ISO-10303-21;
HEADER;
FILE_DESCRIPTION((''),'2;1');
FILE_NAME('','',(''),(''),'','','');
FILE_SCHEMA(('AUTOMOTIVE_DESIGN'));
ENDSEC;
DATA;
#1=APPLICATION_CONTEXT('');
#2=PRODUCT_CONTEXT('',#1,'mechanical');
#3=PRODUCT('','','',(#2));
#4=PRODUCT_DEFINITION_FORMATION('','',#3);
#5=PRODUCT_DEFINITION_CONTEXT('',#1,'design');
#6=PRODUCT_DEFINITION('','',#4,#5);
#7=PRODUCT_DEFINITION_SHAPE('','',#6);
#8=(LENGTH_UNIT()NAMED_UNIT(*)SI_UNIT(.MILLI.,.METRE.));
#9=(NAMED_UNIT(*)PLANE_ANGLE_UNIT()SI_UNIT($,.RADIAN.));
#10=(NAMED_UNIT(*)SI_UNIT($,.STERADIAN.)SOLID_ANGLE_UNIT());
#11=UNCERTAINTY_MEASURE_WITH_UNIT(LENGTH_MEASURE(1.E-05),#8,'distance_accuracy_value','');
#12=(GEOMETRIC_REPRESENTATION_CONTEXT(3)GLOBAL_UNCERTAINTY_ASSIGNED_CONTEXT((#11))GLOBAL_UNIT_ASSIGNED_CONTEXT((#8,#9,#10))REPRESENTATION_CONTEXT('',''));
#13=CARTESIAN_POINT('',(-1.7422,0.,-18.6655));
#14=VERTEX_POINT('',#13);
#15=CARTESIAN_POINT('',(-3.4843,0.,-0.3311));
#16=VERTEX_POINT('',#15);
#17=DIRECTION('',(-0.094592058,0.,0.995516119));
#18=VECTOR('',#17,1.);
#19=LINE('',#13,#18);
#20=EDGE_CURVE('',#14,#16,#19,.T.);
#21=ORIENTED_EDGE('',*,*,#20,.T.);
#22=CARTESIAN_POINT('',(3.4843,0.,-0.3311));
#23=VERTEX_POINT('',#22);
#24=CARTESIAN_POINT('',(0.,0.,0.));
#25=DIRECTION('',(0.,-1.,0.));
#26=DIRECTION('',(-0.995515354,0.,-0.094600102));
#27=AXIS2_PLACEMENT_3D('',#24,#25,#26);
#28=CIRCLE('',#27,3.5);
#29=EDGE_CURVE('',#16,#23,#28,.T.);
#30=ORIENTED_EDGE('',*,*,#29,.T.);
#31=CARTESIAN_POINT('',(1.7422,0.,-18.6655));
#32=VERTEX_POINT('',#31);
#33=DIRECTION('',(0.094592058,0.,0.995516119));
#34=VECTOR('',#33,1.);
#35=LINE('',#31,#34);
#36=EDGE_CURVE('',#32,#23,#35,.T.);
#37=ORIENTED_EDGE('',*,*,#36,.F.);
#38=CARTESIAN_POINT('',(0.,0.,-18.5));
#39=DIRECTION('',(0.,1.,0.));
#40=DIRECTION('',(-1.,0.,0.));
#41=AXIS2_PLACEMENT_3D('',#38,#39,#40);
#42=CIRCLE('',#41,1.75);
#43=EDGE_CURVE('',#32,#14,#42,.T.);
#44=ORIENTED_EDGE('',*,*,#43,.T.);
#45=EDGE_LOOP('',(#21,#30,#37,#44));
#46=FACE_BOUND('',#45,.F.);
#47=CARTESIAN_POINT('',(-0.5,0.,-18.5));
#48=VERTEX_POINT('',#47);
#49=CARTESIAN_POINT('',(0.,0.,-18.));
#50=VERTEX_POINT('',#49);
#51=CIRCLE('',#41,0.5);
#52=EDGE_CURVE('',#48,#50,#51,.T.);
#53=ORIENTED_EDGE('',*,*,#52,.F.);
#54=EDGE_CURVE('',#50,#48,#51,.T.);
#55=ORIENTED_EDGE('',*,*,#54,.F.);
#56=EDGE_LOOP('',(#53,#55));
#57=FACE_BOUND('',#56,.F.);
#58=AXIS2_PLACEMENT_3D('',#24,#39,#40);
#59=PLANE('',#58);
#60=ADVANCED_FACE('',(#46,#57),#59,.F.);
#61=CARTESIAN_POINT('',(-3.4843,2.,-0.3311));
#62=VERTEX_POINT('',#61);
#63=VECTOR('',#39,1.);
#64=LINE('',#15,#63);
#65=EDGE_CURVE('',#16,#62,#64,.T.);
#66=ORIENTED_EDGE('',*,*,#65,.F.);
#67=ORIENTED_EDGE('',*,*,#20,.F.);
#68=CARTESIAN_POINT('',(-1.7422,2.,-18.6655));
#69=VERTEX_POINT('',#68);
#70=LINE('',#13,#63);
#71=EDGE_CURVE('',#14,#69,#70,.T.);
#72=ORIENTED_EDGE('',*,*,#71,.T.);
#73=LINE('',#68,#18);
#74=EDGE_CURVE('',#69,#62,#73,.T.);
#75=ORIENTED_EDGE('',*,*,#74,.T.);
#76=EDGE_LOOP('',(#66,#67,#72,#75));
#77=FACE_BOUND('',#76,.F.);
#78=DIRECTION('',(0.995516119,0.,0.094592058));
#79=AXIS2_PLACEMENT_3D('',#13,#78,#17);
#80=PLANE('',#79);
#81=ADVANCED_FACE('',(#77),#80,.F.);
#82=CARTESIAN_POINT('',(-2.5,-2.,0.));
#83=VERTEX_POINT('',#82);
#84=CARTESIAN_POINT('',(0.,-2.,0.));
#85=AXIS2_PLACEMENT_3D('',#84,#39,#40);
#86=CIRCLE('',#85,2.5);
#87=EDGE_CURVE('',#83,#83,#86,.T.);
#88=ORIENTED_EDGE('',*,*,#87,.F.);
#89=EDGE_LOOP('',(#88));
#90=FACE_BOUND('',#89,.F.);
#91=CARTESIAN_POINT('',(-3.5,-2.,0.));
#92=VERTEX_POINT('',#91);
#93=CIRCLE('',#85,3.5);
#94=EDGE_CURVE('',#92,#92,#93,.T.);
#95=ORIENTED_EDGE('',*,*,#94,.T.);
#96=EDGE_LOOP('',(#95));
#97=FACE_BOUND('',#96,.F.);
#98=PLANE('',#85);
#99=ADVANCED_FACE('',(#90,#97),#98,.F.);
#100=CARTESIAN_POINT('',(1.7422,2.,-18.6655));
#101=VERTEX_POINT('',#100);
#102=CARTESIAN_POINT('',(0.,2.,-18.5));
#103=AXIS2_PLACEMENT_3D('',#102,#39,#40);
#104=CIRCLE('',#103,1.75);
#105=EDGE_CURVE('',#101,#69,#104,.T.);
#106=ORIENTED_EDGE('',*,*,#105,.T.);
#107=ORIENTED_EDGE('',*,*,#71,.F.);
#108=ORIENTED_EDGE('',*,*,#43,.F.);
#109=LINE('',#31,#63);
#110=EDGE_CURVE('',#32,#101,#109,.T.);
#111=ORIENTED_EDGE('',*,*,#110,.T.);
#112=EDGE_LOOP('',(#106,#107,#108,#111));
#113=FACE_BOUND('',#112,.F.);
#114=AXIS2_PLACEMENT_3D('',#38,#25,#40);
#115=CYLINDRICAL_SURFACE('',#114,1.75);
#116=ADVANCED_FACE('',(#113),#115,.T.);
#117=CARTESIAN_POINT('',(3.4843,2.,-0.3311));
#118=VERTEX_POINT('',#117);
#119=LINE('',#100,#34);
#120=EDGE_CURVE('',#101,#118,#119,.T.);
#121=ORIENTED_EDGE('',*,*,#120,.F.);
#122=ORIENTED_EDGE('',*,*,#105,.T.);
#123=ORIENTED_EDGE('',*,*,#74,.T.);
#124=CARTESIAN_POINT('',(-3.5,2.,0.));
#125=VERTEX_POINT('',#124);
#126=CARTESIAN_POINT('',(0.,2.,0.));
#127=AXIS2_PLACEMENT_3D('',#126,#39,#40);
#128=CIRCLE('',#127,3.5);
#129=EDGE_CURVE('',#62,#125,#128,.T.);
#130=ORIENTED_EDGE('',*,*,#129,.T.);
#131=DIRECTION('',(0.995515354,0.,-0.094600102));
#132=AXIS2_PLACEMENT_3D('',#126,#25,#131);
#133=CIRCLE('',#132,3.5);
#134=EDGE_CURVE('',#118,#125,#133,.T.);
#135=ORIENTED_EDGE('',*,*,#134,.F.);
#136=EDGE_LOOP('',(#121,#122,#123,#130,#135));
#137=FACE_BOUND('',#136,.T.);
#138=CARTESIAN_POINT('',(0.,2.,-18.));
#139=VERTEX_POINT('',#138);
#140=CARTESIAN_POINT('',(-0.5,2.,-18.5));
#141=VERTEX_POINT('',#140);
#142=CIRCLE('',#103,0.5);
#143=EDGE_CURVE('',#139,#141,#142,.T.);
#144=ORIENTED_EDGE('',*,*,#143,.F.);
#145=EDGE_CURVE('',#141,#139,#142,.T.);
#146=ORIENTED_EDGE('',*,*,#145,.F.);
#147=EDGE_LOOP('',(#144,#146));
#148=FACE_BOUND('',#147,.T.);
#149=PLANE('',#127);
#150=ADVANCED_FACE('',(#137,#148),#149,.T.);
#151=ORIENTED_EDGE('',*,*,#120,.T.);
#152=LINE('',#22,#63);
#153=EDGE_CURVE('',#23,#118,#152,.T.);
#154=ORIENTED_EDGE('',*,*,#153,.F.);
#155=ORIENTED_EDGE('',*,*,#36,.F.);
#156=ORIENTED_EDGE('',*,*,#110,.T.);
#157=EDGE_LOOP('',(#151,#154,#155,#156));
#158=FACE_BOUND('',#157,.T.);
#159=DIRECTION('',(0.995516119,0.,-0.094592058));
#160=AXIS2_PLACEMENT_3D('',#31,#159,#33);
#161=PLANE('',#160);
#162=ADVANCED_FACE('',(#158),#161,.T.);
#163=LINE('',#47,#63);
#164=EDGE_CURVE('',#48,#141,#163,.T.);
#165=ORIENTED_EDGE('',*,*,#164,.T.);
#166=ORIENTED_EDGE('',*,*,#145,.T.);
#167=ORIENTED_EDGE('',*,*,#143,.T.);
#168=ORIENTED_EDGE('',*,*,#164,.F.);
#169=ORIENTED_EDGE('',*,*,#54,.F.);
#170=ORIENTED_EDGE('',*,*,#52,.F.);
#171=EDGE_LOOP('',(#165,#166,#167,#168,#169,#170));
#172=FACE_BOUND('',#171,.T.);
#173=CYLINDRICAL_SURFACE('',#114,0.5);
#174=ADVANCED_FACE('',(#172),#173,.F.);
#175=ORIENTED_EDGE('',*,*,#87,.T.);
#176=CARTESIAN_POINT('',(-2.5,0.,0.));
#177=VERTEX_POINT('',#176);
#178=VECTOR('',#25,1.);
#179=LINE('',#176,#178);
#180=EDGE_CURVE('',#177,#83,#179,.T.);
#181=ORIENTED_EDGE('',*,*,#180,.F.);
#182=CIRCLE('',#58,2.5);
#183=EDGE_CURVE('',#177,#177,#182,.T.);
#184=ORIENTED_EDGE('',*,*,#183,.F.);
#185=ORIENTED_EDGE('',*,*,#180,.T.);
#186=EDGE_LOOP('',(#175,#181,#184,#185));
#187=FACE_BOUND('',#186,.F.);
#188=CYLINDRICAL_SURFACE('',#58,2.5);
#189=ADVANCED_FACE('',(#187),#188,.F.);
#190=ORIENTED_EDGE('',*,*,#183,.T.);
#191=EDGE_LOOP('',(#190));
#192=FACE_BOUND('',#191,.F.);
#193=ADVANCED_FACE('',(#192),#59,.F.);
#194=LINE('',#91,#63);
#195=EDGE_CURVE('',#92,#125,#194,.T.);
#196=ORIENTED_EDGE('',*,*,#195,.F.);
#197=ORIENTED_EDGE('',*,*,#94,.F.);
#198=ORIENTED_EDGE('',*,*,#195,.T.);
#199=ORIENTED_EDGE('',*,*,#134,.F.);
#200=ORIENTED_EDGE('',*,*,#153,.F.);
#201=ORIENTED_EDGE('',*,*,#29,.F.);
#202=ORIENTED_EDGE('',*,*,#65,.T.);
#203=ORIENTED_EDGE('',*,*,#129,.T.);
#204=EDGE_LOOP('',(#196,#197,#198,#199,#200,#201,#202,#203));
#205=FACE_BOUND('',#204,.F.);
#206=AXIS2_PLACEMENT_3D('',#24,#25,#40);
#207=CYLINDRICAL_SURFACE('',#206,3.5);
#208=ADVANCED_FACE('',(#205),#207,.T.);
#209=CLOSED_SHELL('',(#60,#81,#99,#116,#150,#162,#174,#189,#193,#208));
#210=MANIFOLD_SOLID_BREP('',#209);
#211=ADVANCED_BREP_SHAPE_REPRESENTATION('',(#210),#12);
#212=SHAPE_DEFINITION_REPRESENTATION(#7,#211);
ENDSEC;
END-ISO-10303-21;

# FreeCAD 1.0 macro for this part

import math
import FreeCAD as App
import Part
import Sketcher
from FreeCAD import Vector

doc = App.newDocument("Part")
body = doc.addObject("PartDesign::Body", "Body")

# Sketch on XZ plane
sketch1 = body.newObject("Sketcher::SketchObject", "Sketch")
sketch1.AttachmentSupport = (doc.getObject("XZ_Plane"), [""])
sketch1.MapMode = "FlatFace"
sketch1.addGeometry([
    Part.ArcOfCircle(Part.Circle(Vector(0, 0, 0), Vector(0, 0, 1), 3.5), math.radians(-5), math.radians(185)),  # 0
    Part.LineSegment(Vector(3.5, -0.3, 0), Vector(1.7, -18.7, 0)),  # 1
    Part.ArcOfCircle(Part.Circle(Vector(0, -18.5, 0), Vector(0, 0, 1), 1.8), math.radians(-175), math.radians(-5)),  # 2
    Part.LineSegment(Vector(-1.7, -18.7, 0), Vector(-3.5, -0.3, 0)),  # 3
    Part.Circle(Vector(0, -18.5, 0), Vector(0, 0, 1), 0.5),  # 4
], False)
sketch1.addConstraint([
    Sketcher.Constraint("Tangent", 0, 1, 1, 1),
    Sketcher.Constraint("Tangent", 1, 2, 2, 2),
    Sketcher.Constraint("Tangent", 2, 1, 3, 1),
    Sketcher.Constraint("Tangent", 3, 2, 0, 2),
    Sketcher.Constraint("Coincident", 0, 3, -1, 1),
    Sketcher.Constraint("Coincident", 4, 3, 2, 3),
    Sketcher.Constraint("PointOnObject", 2, 3, -2),
    Sketcher.Constraint("Diameter", 4, 1.0),
    Sketcher.Constraint("Radius", 0, 3.5),
    Sketcher.Constraint("Radius", 2, 1.75),
    Sketcher.Constraint("DistanceY", 2, 3, -1, 1, 18.5),
])
pad1 = body.newObject("PartDesign::Pad", "Pad")
pad1.Profile = sketch1
pad1.Length = 2
pad1.Reversed = True

# Sketch on XZ plane
sketch2 = body.newObject("Sketcher::SketchObject", "Sketch001")
sketch2.AttachmentSupport = (doc.getObject("XZ_Plane"), [""])
sketch2.MapMode = "FlatFace"
sketch2.addGeometry([
    Part.Circle(Vector(0, 0, 0), Vector(0, 0, 1), 3.5),
    Part.Circle(Vector(0, 0, 0), Vector(0, 0, 1), 2.5),
], False)
sketch2.addConstraint([
    Sketcher.Constraint("Coincident", 0, 3, -1, 1),
    Sketcher.Constraint("Coincident", 1, 3, -1, 1),
    Sketcher.Constraint("Diameter", 0, 7.0),
    Sketcher.Constraint("Diameter", 1, 5.0),
])
pad2 = body.newObject("PartDesign::Pad", "Pad001")
pad2.Profile = sketch2
pad2.Length = 2

doc.recompute()
